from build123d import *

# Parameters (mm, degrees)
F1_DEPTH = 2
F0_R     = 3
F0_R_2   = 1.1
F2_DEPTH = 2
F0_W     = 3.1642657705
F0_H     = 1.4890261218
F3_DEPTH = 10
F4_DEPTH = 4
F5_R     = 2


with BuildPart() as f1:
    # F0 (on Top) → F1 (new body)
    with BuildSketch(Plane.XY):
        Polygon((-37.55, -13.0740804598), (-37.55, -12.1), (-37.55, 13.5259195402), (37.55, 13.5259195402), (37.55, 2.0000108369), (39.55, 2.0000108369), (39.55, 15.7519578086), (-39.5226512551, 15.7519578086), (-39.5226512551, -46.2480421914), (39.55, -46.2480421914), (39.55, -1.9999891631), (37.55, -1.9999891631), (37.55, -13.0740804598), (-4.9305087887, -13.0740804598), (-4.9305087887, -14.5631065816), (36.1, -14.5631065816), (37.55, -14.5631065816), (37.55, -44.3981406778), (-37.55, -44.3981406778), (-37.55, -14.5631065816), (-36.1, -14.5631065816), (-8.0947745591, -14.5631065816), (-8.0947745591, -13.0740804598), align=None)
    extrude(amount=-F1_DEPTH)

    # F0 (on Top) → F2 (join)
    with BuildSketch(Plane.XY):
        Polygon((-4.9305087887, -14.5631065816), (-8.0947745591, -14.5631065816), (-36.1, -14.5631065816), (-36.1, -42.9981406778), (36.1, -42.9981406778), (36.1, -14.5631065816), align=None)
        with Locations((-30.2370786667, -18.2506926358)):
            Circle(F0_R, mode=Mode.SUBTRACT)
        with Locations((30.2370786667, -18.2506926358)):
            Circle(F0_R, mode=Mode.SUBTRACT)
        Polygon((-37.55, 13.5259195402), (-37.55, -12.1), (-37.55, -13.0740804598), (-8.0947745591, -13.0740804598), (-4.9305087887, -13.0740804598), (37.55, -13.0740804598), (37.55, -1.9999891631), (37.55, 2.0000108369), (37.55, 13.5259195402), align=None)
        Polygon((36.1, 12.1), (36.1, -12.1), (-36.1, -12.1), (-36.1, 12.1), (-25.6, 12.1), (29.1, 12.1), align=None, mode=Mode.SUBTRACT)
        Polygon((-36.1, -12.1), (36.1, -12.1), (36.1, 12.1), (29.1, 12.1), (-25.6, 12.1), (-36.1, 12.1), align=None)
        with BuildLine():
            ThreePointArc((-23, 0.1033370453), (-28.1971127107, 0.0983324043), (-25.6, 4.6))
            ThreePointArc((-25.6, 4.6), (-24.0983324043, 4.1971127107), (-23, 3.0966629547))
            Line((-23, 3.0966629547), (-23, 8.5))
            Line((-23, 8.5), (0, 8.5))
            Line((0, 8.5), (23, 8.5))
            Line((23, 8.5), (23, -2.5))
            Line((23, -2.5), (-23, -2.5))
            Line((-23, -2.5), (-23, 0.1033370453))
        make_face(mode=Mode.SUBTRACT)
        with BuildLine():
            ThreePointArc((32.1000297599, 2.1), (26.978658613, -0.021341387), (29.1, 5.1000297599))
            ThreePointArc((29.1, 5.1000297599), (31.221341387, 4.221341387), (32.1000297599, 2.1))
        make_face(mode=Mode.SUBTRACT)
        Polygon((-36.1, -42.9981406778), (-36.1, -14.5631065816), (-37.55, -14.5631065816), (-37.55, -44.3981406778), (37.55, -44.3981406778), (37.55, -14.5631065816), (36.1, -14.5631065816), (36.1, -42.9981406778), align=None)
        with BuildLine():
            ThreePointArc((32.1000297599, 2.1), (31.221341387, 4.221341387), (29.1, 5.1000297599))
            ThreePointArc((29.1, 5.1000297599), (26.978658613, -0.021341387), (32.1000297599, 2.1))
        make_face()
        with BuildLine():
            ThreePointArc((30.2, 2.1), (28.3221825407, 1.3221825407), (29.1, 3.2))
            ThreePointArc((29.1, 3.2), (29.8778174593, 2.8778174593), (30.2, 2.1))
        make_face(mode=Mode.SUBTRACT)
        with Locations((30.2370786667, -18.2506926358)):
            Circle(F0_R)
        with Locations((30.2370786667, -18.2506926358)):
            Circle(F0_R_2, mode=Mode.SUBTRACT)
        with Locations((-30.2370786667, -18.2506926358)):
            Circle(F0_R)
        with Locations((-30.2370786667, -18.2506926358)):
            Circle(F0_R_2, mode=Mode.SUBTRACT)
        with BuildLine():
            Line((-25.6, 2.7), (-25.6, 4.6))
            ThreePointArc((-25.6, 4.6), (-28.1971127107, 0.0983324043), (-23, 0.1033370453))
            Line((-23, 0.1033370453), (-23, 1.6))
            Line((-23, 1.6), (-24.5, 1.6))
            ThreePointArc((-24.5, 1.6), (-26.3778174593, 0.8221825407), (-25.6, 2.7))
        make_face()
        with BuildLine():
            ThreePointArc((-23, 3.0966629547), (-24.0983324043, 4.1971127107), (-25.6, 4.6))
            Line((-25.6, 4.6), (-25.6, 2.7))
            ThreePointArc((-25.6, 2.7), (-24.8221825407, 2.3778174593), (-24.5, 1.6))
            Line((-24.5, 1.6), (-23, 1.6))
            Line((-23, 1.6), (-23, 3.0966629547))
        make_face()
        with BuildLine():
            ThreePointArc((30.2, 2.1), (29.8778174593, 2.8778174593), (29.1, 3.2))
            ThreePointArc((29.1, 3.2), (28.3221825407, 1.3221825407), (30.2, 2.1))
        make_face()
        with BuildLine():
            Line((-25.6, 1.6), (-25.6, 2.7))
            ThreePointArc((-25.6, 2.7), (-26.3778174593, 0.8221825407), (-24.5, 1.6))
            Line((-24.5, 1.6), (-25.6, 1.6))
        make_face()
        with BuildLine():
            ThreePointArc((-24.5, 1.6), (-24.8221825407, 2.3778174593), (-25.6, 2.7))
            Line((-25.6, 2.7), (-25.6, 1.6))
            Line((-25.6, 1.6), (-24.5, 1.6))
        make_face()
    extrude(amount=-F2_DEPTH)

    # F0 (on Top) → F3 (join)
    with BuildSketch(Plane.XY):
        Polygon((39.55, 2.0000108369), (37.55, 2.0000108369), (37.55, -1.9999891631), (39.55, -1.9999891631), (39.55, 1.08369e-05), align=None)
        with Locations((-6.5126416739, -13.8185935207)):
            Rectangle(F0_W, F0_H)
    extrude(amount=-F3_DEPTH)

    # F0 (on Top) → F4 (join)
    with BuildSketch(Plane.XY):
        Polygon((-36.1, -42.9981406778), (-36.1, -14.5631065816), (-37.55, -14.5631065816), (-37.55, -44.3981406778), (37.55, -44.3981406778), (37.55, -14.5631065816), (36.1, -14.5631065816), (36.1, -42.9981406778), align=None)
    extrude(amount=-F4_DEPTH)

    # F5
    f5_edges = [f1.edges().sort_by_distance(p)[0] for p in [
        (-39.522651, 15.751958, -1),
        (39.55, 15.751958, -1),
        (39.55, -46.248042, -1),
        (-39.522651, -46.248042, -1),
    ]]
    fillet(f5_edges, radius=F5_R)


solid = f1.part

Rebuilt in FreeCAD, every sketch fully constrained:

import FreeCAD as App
import Part
import Sketcher
from FreeCAD import Vector
Q = App.Units.Quantity


def edges_at(feature, points):
    """Names of the edges that pass closest to the given points."""
    edges = feature.Shape.Edges
    near = lambda p: min(range(len(edges)), key=lambda i: edges[i].distToShape(Part.Vertex(*p))[0])
    return sorted({f"Edge{near(p) + 1}" for p in points})


def add_polygon(sketch, points):
    """Adds a closed chain of lines whose ends are joined by coincident constraints."""
    first, n = sketch.GeometryCount, len(points)
    for a, b in zip(points, points[1:] + points[:1]):
        sketch.addGeometry(Part.LineSegment(App.Vector(*a, 0), App.Vector(*b, 0)), False)
    for i in range(n):
        sketch.addConstraint(Sketcher.Constraint("Coincident", first + i, 2, first + (i + 1) % n, 1))

doc = App.newDocument("Part")
body = doc.addObject("PartDesign::Body", "Body")

# Sketch on XY plane
sketch1 = body.newObject("Sketcher::SketchObject", "Sketch")
sketch1.AttachmentSupport = (doc.getObject("XY_Plane"), [""])
sketch1.MapMode = "FlatFace"
add_polygon(sketch1, [(-37.55, -13.07408), (-37.55, 13.52592), (37.55, 13.52592), (37.55, 2.000011), (39.55, 2.000011), (39.55, 15.751958), (-39.522651, 15.751958), (-39.522651, -46.248042), (39.55, -46.248042), (39.55, -1.999989), (37.55, -1.999989), (37.55, -13.07408), (-4.930509, -13.07408), (-4.930509, -14.563107), (37.55, -14.563107), (37.55, -44.398141), (-37.55, -44.398141), (-37.55, -14.563107), (-8.094775, -14.563107), (-8.094775, -13.07408)])  # lines 0-19
sketch1.addConstraint([
    Sketcher.Constraint("Vertical", 0),
    Sketcher.Constraint("Horizontal", 1),
    Sketcher.Constraint("Vertical", 2),
    Sketcher.Constraint("Horizontal", 3),
    Sketcher.Constraint("Vertical", 4),
    Sketcher.Constraint("Horizontal", 5),
    Sketcher.Constraint("Vertical", 6),
    Sketcher.Constraint("Horizontal", 7),
    Sketcher.Constraint("Vertical", 8),
    Sketcher.Constraint("Horizontal", 9),
    Sketcher.Constraint("Vertical", 10),
    Sketcher.Constraint("Horizontal", 11),
    Sketcher.Constraint("Vertical", 12),
    Sketcher.Constraint("Horizontal", 13),
    Sketcher.Constraint("Vertical", 14),
    Sketcher.Constraint("Horizontal", 15),
    Sketcher.Constraint("Vertical", 16),
    Sketcher.Constraint("Horizontal", 17),
    Sketcher.Constraint("Vertical", 18),
    Sketcher.Constraint("Horizontal", 19),
    Sketcher.Constraint("Symmetric", 13, 2, 16, 2, -2),
    Sketcher.Constraint("Symmetric", 10, 2, 19, 2, -2),
    Sketcher.Constraint("Vertical", 4, 2, 7, 2),
    Sketcher.Constraint("Vertical", 2, 2, 9, 2),
    Sketcher.Constraint("Vertical", 10, 2, 13, 2),
    Sketcher.Constraint("DistanceX", 3, 1, 3, 2, Q("2 mm")),
    Sketcher.Constraint("DistanceY", 6, 2, 6, 1, Q("62 mm")),
    Sketcher.Constraint("DistanceX", 1, 1, 1, 2, Q("75.1 mm")),
    Sketcher.Constraint("DistanceY", 0, 1, 0, 2, Q("26.6 mm")),
    Sketcher.Constraint("DistanceY", 8, 2, 3, 2, Q("4 mm")),
    Sketcher.Constraint("DistanceX", 5, 2, 5, 1, Q("79.072651 mm")),
    Sketcher.Constraint("DistanceX", 11, 2, 11, 1, Q("42.480509 mm")),
    Sketcher.Constraint("DistanceY", 2, 2, 2, 1, Q("11.525909 mm")),
    Sketcher.Constraint("DistanceY", 7, 2, 14, 2, Q("1.849902 mm")),
    Sketcher.Constraint("DistanceX", 17, 1, 17, 2, Q("29.455225 mm")),
    Sketcher.Constraint("DistanceY", 4, 1, 4, 2, Q("13.751947 mm")),
    Sketcher.Constraint("DistanceY", 12, 2, 12, 1, Q("1.489026 mm")),
    Sketcher.Constraint("DistanceY", -1, 1, 0, 2, Q("13.52592 mm")),
])
pad1 = body.newObject("PartDesign::Pad", "Pad")
pad1.Profile = sketch1
pad1.Length = 2
pad1.Reversed = True

# Sketch on XY plane
sketch2 = body.newObject("Sketcher::SketchObject", "Sketch001")
sketch2.AttachmentSupport = (doc.getObject("XY_Plane"), [""])
sketch2.MapMode = "FlatFace"
add_polygon(sketch2, [(-37.55, -14.563107), (-37.55, -44.398141), (37.55, -44.398141), (37.55, -14.563107)])  # lines 0-3
sketch2.addGeometry(Part.Circle(Vector(-30.237079, -18.250693, 0), Vector(0, 0, 1), 1.1), False)  # 4
sketch2.addGeometry(Part.Circle(Vector(30.237079, -18.250693, 0), Vector(0, 0, 1), 1.1), False)  # 5
add_polygon(sketch2, [(-37.55, 13.52592), (-37.55, -13.07408), (37.55, -13.07408), (37.55, 13.52592)])  # lines 6-9
add_polygon(sketch2, [(-23, -2.5), (-23, 8.5), (23, 8.5), (23, -2.5)])  # lines 10-13
sketch2.addConstraint([
    Sketcher.Constraint("Vertical", 0),
    Sketcher.Constraint("Horizontal", 1),
    Sketcher.Constraint("Vertical", 2),
    Sketcher.Constraint("Horizontal", 3),
    Sketcher.Constraint("Vertical", 6),
    Sketcher.Constraint("Horizontal", 7),
    Sketcher.Constraint("Vertical", 8),
    Sketcher.Constraint("Horizontal", 9),
    Sketcher.Constraint("Vertical", 10),
    Sketcher.Constraint("Horizontal", 11),
    Sketcher.Constraint("Vertical", 12),
    Sketcher.Constraint("Horizontal", 13),
    Sketcher.Constraint("Equal", 4, 5),
    Sketcher.Constraint("Symmetric", 4, 3, 5, 3, -2),
    Sketcher.Constraint("Vertical", 3, 2, 6, 2),
    Sketcher.Constraint("Vertical", 2, 2, 7, 2),
    Sketcher.Constraint("Diameter", 4, Q("2.2 mm")),
    Sketcher.Constraint("DistanceX", 11, 1, 11, 2, Q("46 mm")),
    Sketcher.Constraint("DistanceY", 10, 1, 10, 2, Q("11 mm")),
    Sketcher.Constraint("DistanceX", 1, 1, 1, 2, Q("75.1 mm")),
    Sketcher.Constraint("DistanceY", 6, 2, 6, 1, Q("26.6 mm")),
    Sketcher.Constraint("DistanceX", 10, 2, -1, 1, Q("23 mm")),
    Sketcher.Constraint("DistanceY", -1, 1, 10, 2, Q("8.5 mm")),
    Sketcher.Constraint("DistanceX", 0, 2, -1, 1, Q("37.55 mm")),
    Sketcher.Constraint("DistanceY", 0, 2, 0, 1, Q("29.835034 mm")),
    Sketcher.Constraint("DistanceX", 4, 3, -1, 1, Q("30.237079 mm")),
    Sketcher.Constraint("DistanceY", 0, 2, -1, 1, Q("44.398141 mm")),
    Sketcher.Constraint("DistanceY", 6, 2, -1, 1, Q("13.07408 mm")),
    Sketcher.Constraint("DistanceY", 0, 2, 4, 3, Q("26.147448 mm")),
])
pad2 = body.newObject("PartDesign::Pad", "Pad001")
pad2.Profile = sketch2
pad2.Length = 2
pad2.Reversed = True

# Sketch on XY plane
sketch3 = body.newObject("Sketcher::SketchObject", "Sketch002")
sketch3.AttachmentSupport = (doc.getObject("XY_Plane"), [""])
sketch3.MapMode = "FlatFace"
add_polygon(sketch3, [(39.55, 2.000011), (37.55, 2.000011), (37.55, -1.999989), (39.55, -1.999989)])  # lines 0-3
add_polygon(sketch3, [(-8.094775, -13.07408), (-8.094775, -14.563107), (-4.930509, -14.563107), (-4.930509, -13.07408)])  # lines 4-7
sketch3.addConstraint([
    Sketcher.Constraint("Horizontal", 0),
    Sketcher.Constraint("Vertical", 1),
    Sketcher.Constraint("Horizontal", 2),
    Sketcher.Constraint("Vertical", 3),
    Sketcher.Constraint("Vertical", 4),
    Sketcher.Constraint("Horizontal", 5),
    Sketcher.Constraint("Vertical", 6),
    Sketcher.Constraint("Horizontal", 7),
    Sketcher.Constraint("DistanceX", 0, 2, 0, 1, Q("2 mm")),
    Sketcher.Constraint("DistanceY", 1, 2, 1, 1, Q("4 mm")),
    Sketcher.Constraint("DistanceX", -1, 1, 0, 2, Q("37.55 mm")),
    Sketcher.Constraint("DistanceX", 5, 1, 5, 2, Q("3.164266 mm")),
    Sketcher.Constraint("DistanceY", 4, 2, 4, 1, Q("1.489026 mm")),
    Sketcher.Constraint("DistanceY", -1, 1, 0, 2, Q("2.000011 mm")),
    Sketcher.Constraint("DistanceX", 5, 2, -1, 1, Q("4.930509 mm")),
    Sketcher.Constraint("DistanceY", 6, 2, -1, 1, Q("13.07408 mm")),
])
pad3 = body.newObject("PartDesign::Pad", "Pad002")
pad3.Profile = sketch3
pad3.Length = 10
pad3.Reversed = True

# Sketch on XY plane
sketch4 = body.newObject("Sketcher::SketchObject", "Sketch003")
sketch4.AttachmentSupport = (doc.getObject("XY_Plane"), [""])
sketch4.MapMode = "FlatFace"
add_polygon(sketch4, [(-36.1, -42.998141), (-36.1, -14.563107), (-37.55, -14.563107), (-37.55, -44.398141), (37.55, -44.398141), (37.55, -14.563107), (36.1, -14.563107), (36.1, -42.998141)])  # lines 0-7
sketch4.addConstraint([
    Sketcher.Constraint("Vertical", 0),
    Sketcher.Constraint("Horizontal", 1),
    Sketcher.Constraint("Vertical", 2),
    Sketcher.Constraint("Horizontal", 3),
    Sketcher.Constraint("Vertical", 4),
    Sketcher.Constraint("Horizontal", 5),
    Sketcher.Constraint("Vertical", 6),
    Sketcher.Constraint("Horizontal", 7),
    Sketcher.Constraint("Symmetric", 1, 2, 4, 2, -2),
    Sketcher.Constraint("Equal", 1, 5),
    Sketcher.Constraint("DistanceX", 3, 1, 3, 2, Q("75.1 mm")),
    Sketcher.Constraint("DistanceX", 7, 2, 7, 1, Q("72.2 mm")),
    Sketcher.Constraint("DistanceY", 3, 2, 6, 2, Q("1.4 mm")),
    Sketcher.Constraint("DistanceY", 0, 1, 0, 2, Q("28.435034 mm")),
    Sketcher.Constraint("DistanceY", 2, 2, -1, 1, Q("44.398141 mm")),
])
pad4 = body.newObject("PartDesign::Pad", "Pad003")
pad4.Profile = sketch4
pad4.Length = 4
pad4.Reversed = True
doc.recompute()

fillet = body.newObject("PartDesign::Fillet", "Fillet")
fillet.Base = (pad4, edges_at(pad4, [
    (-39.523, 15.752, -1),
    (39.55, 15.752, -1),
    (39.55, -46.248, -1),
    (-39.523, -46.248, -1),
]))
fillet.Radius = 2

doc.recompute()
